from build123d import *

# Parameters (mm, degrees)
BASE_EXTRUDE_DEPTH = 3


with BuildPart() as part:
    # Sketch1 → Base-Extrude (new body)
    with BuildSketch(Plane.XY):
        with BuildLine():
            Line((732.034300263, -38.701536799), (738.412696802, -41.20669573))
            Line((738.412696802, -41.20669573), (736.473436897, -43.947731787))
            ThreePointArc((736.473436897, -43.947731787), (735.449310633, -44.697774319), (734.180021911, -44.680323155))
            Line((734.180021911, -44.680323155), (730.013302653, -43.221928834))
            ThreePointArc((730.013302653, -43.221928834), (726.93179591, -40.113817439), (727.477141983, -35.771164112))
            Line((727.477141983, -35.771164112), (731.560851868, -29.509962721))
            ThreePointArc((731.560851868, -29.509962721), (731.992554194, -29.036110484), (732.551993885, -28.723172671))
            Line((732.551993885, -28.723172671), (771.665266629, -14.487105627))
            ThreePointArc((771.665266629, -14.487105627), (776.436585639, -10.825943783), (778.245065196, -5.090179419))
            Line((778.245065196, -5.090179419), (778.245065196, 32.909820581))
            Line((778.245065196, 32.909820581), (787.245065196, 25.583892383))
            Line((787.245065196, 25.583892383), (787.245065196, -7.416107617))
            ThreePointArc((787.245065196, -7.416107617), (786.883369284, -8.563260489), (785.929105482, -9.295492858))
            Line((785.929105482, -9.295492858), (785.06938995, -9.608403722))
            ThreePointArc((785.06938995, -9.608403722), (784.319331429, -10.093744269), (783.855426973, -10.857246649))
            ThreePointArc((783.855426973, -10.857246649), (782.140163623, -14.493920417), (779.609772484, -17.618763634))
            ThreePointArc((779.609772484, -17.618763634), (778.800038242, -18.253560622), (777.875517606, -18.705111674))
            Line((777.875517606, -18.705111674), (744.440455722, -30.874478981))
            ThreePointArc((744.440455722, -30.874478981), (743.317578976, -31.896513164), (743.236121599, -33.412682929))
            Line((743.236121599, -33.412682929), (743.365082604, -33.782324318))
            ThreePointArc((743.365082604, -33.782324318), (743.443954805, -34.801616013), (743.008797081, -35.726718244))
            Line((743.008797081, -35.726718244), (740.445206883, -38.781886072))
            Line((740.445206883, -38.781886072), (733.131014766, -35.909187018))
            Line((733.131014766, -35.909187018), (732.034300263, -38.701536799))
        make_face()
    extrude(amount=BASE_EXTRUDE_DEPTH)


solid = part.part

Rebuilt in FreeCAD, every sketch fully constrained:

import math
import FreeCAD as App
import Part
import Sketcher

V = App.Vector
Q = App.Units.Quantity

doc = App.newDocument("Part")
body = doc.addObject("PartDesign::Body", "Body")

sketch1 = body.newObject("Sketcher::SketchObject", "Sketch")
sketch1.AttachmentSupport = (doc.getObject("XY_Plane"), [""])
sketch1.MapMode = "FlatFace"
sketch1.addGeometry([
    Part.LineSegment(V(738.412697, -41.206696, 0), V(732.0343, -38.701537, 0)),
    Part.LineSegment(V(732.0343, -38.701537, 0), V(733.131015, -35.909187, 0)),
    Part.LineSegment(V(733.131015, -35.909187, 0), V(740.445207, -38.781886, 0)),
    Part.LineSegment(V(740.445207, -38.781886, 0), V(743.008797, -35.726718, 0)),
    Part.ArcOfCircle(Part.Circle(V(741.476708, -34.441143, 0), V(0, 0, 1), 2), math.radians(-40), math.radians(19.23293)),
    Part.LineSegment(V(743.365083, -33.782324, 0), V(743.236122, -33.412683, 0)),
    Part.ArcOfCircle(Part.Circle(V(745.124496, -32.753864, 0), V(0, 0, 1), 2), math.radians(110), math.radians(199.23293)),
    Part.LineSegment(V(744.440456, -30.874479, 0), V(777.875518, -18.705112, 0)),
    Part.ArcOfCircle(Part.Circle(V(776.201019, -14.104466, 0), V(0, 0, 1), 4.895905), math.radians(-70), math.radians(-45.87343)),
    Part.ArcOfCircle(Part.Circle(V(767.91462, -5.561495, 0), V(0, 0, 1), 16.79745), math.radians(-45.87343), math.radians(-18.377184)),
    Part.ArcOfCircle(Part.Circle(V(785.75343, -11.487789, 0), V(0, 0, 1), 2), math.radians(110), math.radians(161.622816)),
    Part.LineSegment(V(785.06939, -9.608404, 0), V(785.929105, -9.295493, 0)),
    Part.ArcOfCircle(Part.Circle(V(785.245065, -7.416108, 0), V(0, 0, 1), 2), math.radians(-70), math.radians(0)),
    Part.LineSegment(V(787.245065, -7.416108, 0), V(787.245065, 25.583892, 0)),
    Part.LineSegment(V(787.245065, 25.583892, 0), V(778.245065, 32.909821, 0)),
    Part.LineSegment(V(778.245065, 32.909821, 0), V(778.245065, -5.090179, 0)),
    Part.ArcOfCircle(Part.Circle(V(768.245065, -5.090179, 0), V(0, 0, 1), 10), math.radians(-70), math.radians(0)),
    Part.LineSegment(V(771.665267, -14.487106, 0), V(732.551994, -28.723173, 0)),
    Part.ArcOfCircle(Part.Circle(V(733.236034, -30.602558, 0), V(0, 0, 1), 2), math.radians(110), math.radians(146.886619)),
    Part.LineSegment(V(731.560852, -29.509963, 0), V(727.477142, -35.771164, 0)),
    Part.ArcOfCircle(Part.Circle(V(731.665098, -38.502652, 0), V(0, 0, 1), 5), math.radians(146.886619), math.radians(250.709432)),
    Part.LineSegment(V(730.013303, -43.221929, 0), V(734.180022, -44.680323, 0)),
    Part.ArcOfCircle(Part.Circle(V(734.84074, -42.792612, 0), V(0, 0, 1), 2), math.radians(-109.290568), math.radians(-35.279085)),
    Part.LineSegment(V(736.473437, -43.947732, 0), V(738.412697, -41.206696, 0)),
], False)
sketch1.addConstraint([
    Sketcher.Constraint("Coincident", 0, 2, 1, 1),
    Sketcher.Constraint("Coincident", 1, 2, 2, 1),
    Sketcher.Constraint("Coincident", 2, 2, 3, 1),
    Sketcher.Constraint("Tangent", 3, 2, 4, 1),
    Sketcher.Constraint("Tangent", 4, 2, 5, 1),
    Sketcher.Constraint("Tangent", 5, 2, 6, 2),
    Sketcher.Constraint("Tangent", 6, 1, 7, 1),
    Sketcher.Constraint("Tangent", 7, 2, 8, 1),
    Sketcher.Constraint("Tangent", 8, 2, 9, 1),
    Sketcher.Constraint("Tangent", 9, 2, 10, 2),
    Sketcher.Constraint("Tangent", 10, 1, 11, 1),
    Sketcher.Constraint("Tangent", 11, 2, 12, 1),
    Sketcher.Constraint("Tangent", 12, 2, 13, 1),
    Sketcher.Constraint("Coincident", 13, 2, 14, 1),
    Sketcher.Constraint("Coincident", 14, 2, 15, 1),
    Sketcher.Constraint("Tangent", 15, 2, 16, 2),
    Sketcher.Constraint("Tangent", 16, 1, 17, 1),
    Sketcher.Constraint("Tangent", 17, 2, 18, 1),
    Sketcher.Constraint("Tangent", 18, 2, 19, 1),
    Sketcher.Constraint("Tangent", 19, 2, 20, 1),
    Sketcher.Constraint("Tangent", 20, 2, 21, 1),
    Sketcher.Constraint("Tangent", 21, 2, 22, 1),
    Sketcher.Constraint("Tangent", 22, 2, 23, 1),
    Sketcher.Constraint("Coincident", 23, 2, 0, 1),
    Sketcher.Constraint("Vertical", 13),
    Sketcher.Constraint("Vertical", 15),
    Sketcher.Constraint("Equal", 4, 6),
    Sketcher.Constraint("Equal", 6, 10),
    Sketcher.Constraint("Equal", 10, 12),
    Sketcher.Constraint("Equal", 12, 18),
    Sketcher.Constraint("Equal", 18, 22),
    Sketcher.Constraint("Perpendicular", 0, 1),
    Sketcher.Constraint("Perpendicular", 1, 2),
    Sketcher.Constraint("Parallel", 7, 11),
    Sketcher.Constraint("Parallel", 11, 17),
    Sketcher.Constraint("Radius", 4, 2.0),
    Sketcher.Constraint("Radius", 16, 10.0),
    Sketcher.Constraint("Radius", 20, 5.0),
    Sketcher.Constraint("DistanceY", 13, 1, 13, 2, 33.0),
    Sketcher.Constraint("DistanceY", 15, 2, 15, 1, 38.0),
    Sketcher.Constraint("Angle", 3, Q("50 deg")),
    Sketcher.Constraint("Angle", 7, Q("20 deg")),
    Sketcher.Constraint("Distance", 1, 3.0),
    Sketcher.Constraint("DistanceX", 16, 3, 12, 3, 17.0),
    Sketcher.Constraint("Radius", 9, 16.79745),
    Sketcher.Constraint("Radius", 8, 4.895905),
    Sketcher.Constraint("DistanceX", -1, 1, 0, 2, 732.0343),
    Sketcher.Constraint("DistanceY", 6, 3, 8, 3, 18.649398),
    Sketcher.Constraint("DistanceX", 9, 3, 8, 3, 8.2864),
    Sketcher.Constraint("DistanceX", 20, 3, 6, 3, 13.459398),
    Sketcher.Constraint("DistanceX", 2, 2, 4, 3, 1.031501),
    Sketcher.Constraint("DistanceY", 2, 2, 1, 2, 2.872699),
    Sketcher.Constraint("DistanceX", 3, 2, 6, 3, 2.115699),
    Sketcher.Constraint("DistanceY", 19, 2, 18, 2, 6.261201),
    Sketcher.Constraint("Distance", 0, 6.852719),
    Sketcher.Constraint("Distance", 5, 0.391492),
    Sketcher.Constraint("Distance", 11, 0.91489),
    Sketcher.Constraint("Distance", 23, 3.357679),
    Sketcher.Constraint("DistanceX", -1, 1, 4, 3, 741.476708),
    Sketcher.Constraint("DistanceX", -1, 1, 10, 3, 785.75343),
    Sketcher.Constraint("DistanceY", 10, 3, -1, 1, 11.487789),
    Sketcher.Constraint("DistanceY", 16, 3, -1, 1, 5.090179),
    Sketcher.Constraint("DistanceX", -1, 1, 22, 3, 734.84074),
    Sketcher.Constraint("DistanceX", -1, 1, 18, 2, 731.560852),
])
pad1 = body.newObject("PartDesign::Pad", "Pad")
pad1.Profile = sketch1
pad1.Length = 3

doc.recompute()
